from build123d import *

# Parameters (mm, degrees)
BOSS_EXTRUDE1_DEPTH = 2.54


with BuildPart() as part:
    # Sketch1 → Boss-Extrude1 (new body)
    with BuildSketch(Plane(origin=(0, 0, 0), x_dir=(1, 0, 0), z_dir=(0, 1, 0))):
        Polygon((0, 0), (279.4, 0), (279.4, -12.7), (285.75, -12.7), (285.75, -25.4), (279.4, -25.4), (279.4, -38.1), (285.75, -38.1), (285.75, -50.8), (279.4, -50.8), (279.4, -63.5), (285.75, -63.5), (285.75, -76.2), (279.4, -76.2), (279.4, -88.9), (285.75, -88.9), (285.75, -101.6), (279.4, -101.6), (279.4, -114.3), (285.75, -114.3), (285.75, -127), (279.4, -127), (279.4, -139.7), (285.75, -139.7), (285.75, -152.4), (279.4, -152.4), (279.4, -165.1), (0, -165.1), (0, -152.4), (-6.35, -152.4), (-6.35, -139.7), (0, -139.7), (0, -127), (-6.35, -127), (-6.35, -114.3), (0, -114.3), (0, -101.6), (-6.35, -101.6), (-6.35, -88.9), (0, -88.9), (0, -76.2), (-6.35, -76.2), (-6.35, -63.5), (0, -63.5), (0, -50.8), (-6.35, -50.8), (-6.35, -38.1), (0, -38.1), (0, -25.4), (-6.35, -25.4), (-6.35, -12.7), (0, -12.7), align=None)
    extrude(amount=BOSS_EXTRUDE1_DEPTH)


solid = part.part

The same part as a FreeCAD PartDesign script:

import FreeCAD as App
import Part
import Sketcher
Q = App.Units.Quantity

doc = App.newDocument("Part")
body = doc.addObject("PartDesign::Body", "Body")

sketch1 = body.newObject("Sketcher::SketchObject", "Sketch")
sketch1.AttachmentSupport = (doc.getObject("XZ_Plane"), [""])
sketch1.MapMode = "FlatFace"
sketch1.addGeometry(Part.LineSegment(App.Vector(279, 0, 0), App.Vector(0, 0, 0)), False)
sketch1.addGeometry(Part.LineSegment(App.Vector(0, 0, 0), App.Vector(0, 13, 0)), False)
sketch1.addGeometry(Part.LineSegment(App.Vector(0, 13, 0), App.Vector(-6, 13, 0)), False)
sketch1.addGeometry(Part.LineSegment(App.Vector(-6, 13, 0), App.Vector(-6, 25, 0)), False)
sketch1.addGeometry(Part.LineSegment(App.Vector(-6, 25, 0), App.Vector(0, 25, 0)), False)
sketch1.addGeometry(Part.LineSegment(App.Vector(0, 25, 0), App.Vector(0, 38, 0)), False)
sketch1.addGeometry(Part.LineSegment(App.Vector(0, 38, 0), App.Vector(-6, 38, 0)), False)
sketch1.addGeometry(Part.LineSegment(App.Vector(-6, 38, 0), App.Vector(-6, 51, 0)), False)
sketch1.addGeometry(Part.LineSegment(App.Vector(-6, 51, 0), App.Vector(0, 51, 0)), False)
sketch1.addGeometry(Part.LineSegment(App.Vector(0, 51, 0), App.Vector(0, 64, 0)), False)
sketch1.addGeometry(Part.LineSegment(App.Vector(0, 64, 0), App.Vector(-6, 64, 0)), False)
sketch1.addGeometry(Part.LineSegment(App.Vector(-6, 64, 0), App.Vector(-6, 76, 0)), False)
sketch1.addGeometry(Part.LineSegment(App.Vector(-6, 76, 0), App.Vector(0, 76, 0)), False)
sketch1.addGeometry(Part.LineSegment(App.Vector(0, 76, 0), App.Vector(0, 89, 0)), False)
sketch1.addGeometry(Part.LineSegment(App.Vector(0, 89, 0), App.Vector(-6, 89, 0)), False)
sketch1.addGeometry(Part.LineSegment(App.Vector(-6, 89, 0), App.Vector(-6, 102, 0)), False)
sketch1.addGeometry(Part.LineSegment(App.Vector(-6, 102, 0), App.Vector(0, 102, 0)), False)
sketch1.addGeometry(Part.LineSegment(App.Vector(0, 102, 0), App.Vector(0, 114, 0)), False)
sketch1.addGeometry(Part.LineSegment(App.Vector(0, 114, 0), App.Vector(-6, 114, 0)), False)
sketch1.addGeometry(Part.LineSegment(App.Vector(-6, 114, 0), App.Vector(-6, 127, 0)), False)
sketch1.addGeometry(Part.LineSegment(App.Vector(-6, 127, 0), App.Vector(0, 127, 0)), False)
sketch1.addGeometry(Part.LineSegment(App.Vector(0, 127, 0), App.Vector(0, 140, 0)), False)
sketch1.addGeometry(Part.LineSegment(App.Vector(0, 140, 0), App.Vector(-6, 140, 0)), False)
sketch1.addGeometry(Part.LineSegment(App.Vector(-6, 140, 0), App.Vector(-6, 152, 0)), False)
sketch1.addGeometry(Part.LineSegment(App.Vector(-6, 152, 0), App.Vector(0, 152, 0)), False)
sketch1.addGeometry(Part.LineSegment(App.Vector(0, 152, 0), App.Vector(0, 165, 0)), False)
sketch1.addGeometry(Part.LineSegment(App.Vector(0, 165, 0), App.Vector(279, 165, 0)), False)
sketch1.addGeometry(Part.LineSegment(App.Vector(279, 165, 0), App.Vector(279, 152, 0)), False)
sketch1.addGeometry(Part.LineSegment(App.Vector(279, 152, 0), App.Vector(286, 152, 0)), False)
sketch1.addGeometry(Part.LineSegment(App.Vector(286, 152, 0), App.Vector(286, 140, 0)), False)
sketch1.addGeometry(Part.LineSegment(App.Vector(286, 140, 0), App.Vector(279, 140, 0)), False)
sketch1.addGeometry(Part.LineSegment(App.Vector(279, 140, 0), App.Vector(279, 127, 0)), False)
sketch1.addGeometry(Part.LineSegment(App.Vector(279, 127, 0), App.Vector(286, 127, 0)), False)
sketch1.addGeometry(Part.LineSegment(App.Vector(286, 127, 0), App.Vector(286, 114, 0)), False)
sketch1.addGeometry(Part.LineSegment(App.Vector(286, 114, 0), App.Vector(279, 114, 0)), False)
sketch1.addGeometry(Part.LineSegment(App.Vector(279, 114, 0), App.Vector(279, 102, 0)), False)
sketch1.addGeometry(Part.LineSegment(App.Vector(279, 102, 0), App.Vector(286, 102, 0)), False)
sketch1.addGeometry(Part.LineSegment(App.Vector(286, 102, 0), App.Vector(286, 89, 0)), False)
sketch1.addGeometry(Part.LineSegment(App.Vector(286, 89, 0), App.Vector(279, 89, 0)), False)
sketch1.addGeometry(Part.LineSegment(App.Vector(279, 89, 0), App.Vector(279, 76, 0)), False)
sketch1.addGeometry(Part.LineSegment(App.Vector(279, 76, 0), App.Vector(286, 76, 0)), False)
sketch1.addGeometry(Part.LineSegment(App.Vector(286, 76, 0), App.Vector(286, 64, 0)), False)
sketch1.addGeometry(Part.LineSegment(App.Vector(286, 64, 0), App.Vector(279, 64, 0)), False)
sketch1.addGeometry(Part.LineSegment(App.Vector(279, 64, 0), App.Vector(279, 51, 0)), False)
sketch1.addGeometry(Part.LineSegment(App.Vector(279, 51, 0), App.Vector(286, 51, 0)), False)
sketch1.addGeometry(Part.LineSegment(App.Vector(286, 51, 0), App.Vector(286, 38, 0)), False)
sketch1.addGeometry(Part.LineSegment(App.Vector(286, 38, 0), App.Vector(279, 38, 0)), False)
sketch1.addGeometry(Part.LineSegment(App.Vector(279, 38, 0), App.Vector(279, 25, 0)), False)
sketch1.addGeometry(Part.LineSegment(App.Vector(279, 25, 0), App.Vector(286, 25, 0)), False)
sketch1.addGeometry(Part.LineSegment(App.Vector(286, 25, 0), App.Vector(286, 13, 0)), False)
sketch1.addGeometry(Part.LineSegment(App.Vector(286, 13, 0), App.Vector(279, 13, 0)), False)
sketch1.addGeometry(Part.LineSegment(App.Vector(279, 13, 0), App.Vector(279, 0, 0)), False)
sketch1.addConstraint(Sketcher.Constraint("Coincident", 0, 2, 1, 1))
sketch1.addConstraint(Sketcher.Constraint("Coincident", 1, 2, 2, 1))
sketch1.addConstraint(Sketcher.Constraint("Coincident", 2, 2, 3, 1))
sketch1.addConstraint(Sketcher.Constraint("Coincident", 3, 2, 4, 1))
sketch1.addConstraint(Sketcher.Constraint("Coincident", 4, 2, 5, 1))
sketch1.addConstraint(Sketcher.Constraint("Coincident", 5, 2, 6, 1))
sketch1.addConstraint(Sketcher.Constraint("Coincident", 6, 2, 7, 1))
sketch1.addConstraint(Sketcher.Constraint("Coincident", 7, 2, 8, 1))
sketch1.addConstraint(Sketcher.Constraint("Coincident", 8, 2, 9, 1))
sketch1.addConstraint(Sketcher.Constraint("Coincident", 9, 2, 10, 1))
sketch1.addConstraint(Sketcher.Constraint("Coincident", 10, 2, 11, 1))
sketch1.addConstraint(Sketcher.Constraint("Coincident", 11, 2, 12, 1))
sketch1.addConstraint(Sketcher.Constraint("Coincident", 12, 2, 13, 1))
sketch1.addConstraint(Sketcher.Constraint("Coincident", 13, 2, 14, 1))
sketch1.addConstraint(Sketcher.Constraint("Coincident", 14, 2, 15, 1))
sketch1.addConstraint(Sketcher.Constraint("Coincident", 15, 2, 16, 1))
sketch1.addConstraint(Sketcher.Constraint("Coincident", 16, 2, 17, 1))
sketch1.addConstraint(Sketcher.Constraint("Coincident", 17, 2, 18, 1))
sketch1.addConstraint(Sketcher.Constraint("Coincident", 18, 2, 19, 1))
sketch1.addConstraint(Sketcher.Constraint("Coincident", 19, 2, 20, 1))
sketch1.addConstraint(Sketcher.Constraint("Coincident", 20, 2, 21, 1))
sketch1.addConstraint(Sketcher.Constraint("Coincident", 21, 2, 22, 1))
sketch1.addConstraint(Sketcher.Constraint("Coincident", 22, 2, 23, 1))
sketch1.addConstraint(Sketcher.Constraint("Coincident", 23, 2, 24, 1))
sketch1.addConstraint(Sketcher.Constraint("Coincident", 24, 2, 25, 1))
sketch1.addConstraint(Sketcher.Constraint("Coincident", 25, 2, 26, 1))
sketch1.addConstraint(Sketcher.Constraint("Coincident", 26, 2, 27, 1))
sketch1.addConstraint(Sketcher.Constraint("Coincident", 27, 2, 28, 1))
sketch1.addConstraint(Sketcher.Constraint("Coincident", 28, 2, 29, 1))
sketch1.addConstraint(Sketcher.Constraint("Coincident", 29, 2, 30, 1))
sketch1.addConstraint(Sketcher.Constraint("Coincident", 30, 2, 31, 1))
sketch1.addConstraint(Sketcher.Constraint("Coincident", 31, 2, 32, 1))
sketch1.addConstraint(Sketcher.Constraint("Coincident", 32, 2, 33, 1))
sketch1.addConstraint(Sketcher.Constraint("Coincident", 33, 2, 34, 1))
sketch1.addConstraint(Sketcher.Constraint("Coincident", 34, 2, 35, 1))
sketch1.addConstraint(Sketcher.Constraint("Coincident", 35, 2, 36, 1))
sketch1.addConstraint(Sketcher.Constraint("Coincident", 36, 2, 37, 1))
sketch1.addConstraint(Sketcher.Constraint("Coincident", 37, 2, 38, 1))
sketch1.addConstraint(Sketcher.Constraint("Coincident", 38, 2, 39, 1))
sketch1.addConstraint(Sketcher.Constraint("Coincident", 39, 2, 40, 1))
sketch1.addConstraint(Sketcher.Constraint("Coincident", 40, 2, 41, 1))
sketch1.addConstraint(Sketcher.Constraint("Coincident", 41, 2, 42, 1))
sketch1.addConstraint(Sketcher.Constraint("Coincident", 42, 2, 43, 1))
sketch1.addConstraint(Sketcher.Constraint("Coincident", 43, 2, 44, 1))
sketch1.addConstraint(Sketcher.Constraint("Coincident", 44, 2, 45, 1))
sketch1.addConstraint(Sketcher.Constraint("Coincident", 45, 2, 46, 1))
sketch1.addConstraint(Sketcher.Constraint("Coincident", 46, 2, 47, 1))
sketch1.addConstraint(Sketcher.Constraint("Coincident", 47, 2, 48, 1))
sketch1.addConstraint(Sketcher.Constraint("Coincident", 48, 2, 49, 1))
sketch1.addConstraint(Sketcher.Constraint("Coincident", 49, 2, 50, 1))
sketch1.addConstraint(Sketcher.Constraint("Coincident", 50, 2, 51, 1))
sketch1.addConstraint(Sketcher.Constraint("Coincident", 51, 2, 0, 1))
sketch1.addConstraint(Sketcher.Constraint("Horizontal", 0))
sketch1.addConstraint(Sketcher.Constraint("Vertical", 1))
sketch1.addConstraint(Sketcher.Constraint("Horizontal", 2))
sketch1.addConstraint(Sketcher.Constraint("Vertical", 3))
sketch1.addConstraint(Sketcher.Constraint("Horizontal", 4))
sketch1.addConstraint(Sketcher.Constraint("Vertical", 5))
sketch1.addConstraint(Sketcher.Constraint("Horizontal", 6))
sketch1.addConstraint(Sketcher.Constraint("Vertical", 7))
sketch1.addConstraint(Sketcher.Constraint("Horizontal", 8))
sketch1.addConstraint(Sketcher.Constraint("Vertical", 9))
sketch1.addConstraint(Sketcher.Constraint("Horizontal", 10))
sketch1.addConstraint(Sketcher.Constraint("Vertical", 11))
sketch1.addConstraint(Sketcher.Constraint("Horizontal", 12))
sketch1.addConstraint(Sketcher.Constraint("Vertical", 13))
sketch1.addConstraint(Sketcher.Constraint("Horizontal", 14))
sketch1.addConstraint(Sketcher.Constraint("Vertical", 15))
sketch1.addConstraint(Sketcher.Constraint("Horizontal", 16))
sketch1.addConstraint(Sketcher.Constraint("Vertical", 17))
sketch1.addConstraint(Sketcher.Constraint("Horizontal", 18))
sketch1.addConstraint(Sketcher.Constraint("Vertical", 19))
sketch1.addConstraint(Sketcher.Constraint("Horizontal", 20))
sketch1.addConstraint(Sketcher.Constraint("Vertical", 21))
sketch1.addConstraint(Sketcher.Constraint("Horizontal", 22))
sketch1.addConstraint(Sketcher.Constraint("Vertical", 23))
sketch1.addConstraint(Sketcher.Constraint("Horizontal", 24))
sketch1.addConstraint(Sketcher.Constraint("Vertical", 25))
sketch1.addConstraint(Sketcher.Constraint("Horizontal", 26))
sketch1.addConstraint(Sketcher.Constraint("Vertical", 27))
sketch1.addConstraint(Sketcher.Constraint("Horizontal", 28))
sketch1.addConstraint(Sketcher.Constraint("Vertical", 29))
sketch1.addConstraint(Sketcher.Constraint("Horizontal", 30))
sketch1.addConstraint(Sketcher.Constraint("Vertical", 31))
sketch1.addConstraint(Sketcher.Constraint("Horizontal", 32))
sketch1.addConstraint(Sketcher.Constraint("Vertical", 33))
sketch1.addConstraint(Sketcher.Constraint("Horizontal", 34))
sketch1.addConstraint(Sketcher.Constraint("Vertical", 35))
sketch1.addConstraint(Sketcher.Constraint("Horizontal", 36))
sketch1.addConstraint(Sketcher.Constraint("Vertical", 37))
sketch1.addConstraint(Sketcher.Constraint("Horizontal", 38))
sketch1.addConstraint(Sketcher.Constraint("Vertical", 39))
sketch1.addConstraint(Sketcher.Constraint("Horizontal", 40))
sketch1.addConstraint(Sketcher.Constraint("Vertical", 41))
sketch1.addConstraint(Sketcher.Constraint("Horizontal", 42))
sketch1.addConstraint(Sketcher.Constraint("Vertical", 43))
sketch1.addConstraint(Sketcher.Constraint("Horizontal", 44))
sketch1.addConstraint(Sketcher.Constraint("Vertical", 45))
sketch1.addConstraint(Sketcher.Constraint("Horizontal", 46))
sketch1.addConstraint(Sketcher.Constraint("Vertical", 47))
sketch1.addConstraint(Sketcher.Constraint("Horizontal", 48))
sketch1.addConstraint(Sketcher.Constraint("Vertical", 49))
sketch1.addConstraint(Sketcher.Constraint("Horizontal", 50))
sketch1.addConstraint(Sketcher.Constraint("Vertical", 51))
sketch1.addConstraint(Sketcher.Constraint("Coincident", 0, 2, -1, 1))
sketch1.addConstraint(Sketcher.Constraint("PointOnObject", 4, 2, -2))
sketch1.addConstraint(Sketcher.Constraint("PointOnObject", 8, 2, -2))
sketch1.addConstraint(Sketcher.Constraint("PointOnObject", 12, 2, -2))
sketch1.addConstraint(Sketcher.Constraint("PointOnObject", 16, 2, -2))
sketch1.addConstraint(Sketcher.Constraint("PointOnObject", 20, 2, -2))
sketch1.addConstraint(Sketcher.Constraint("PointOnObject", 24, 2, -2))
sketch1.addConstraint(Sketcher.Constraint("Horizontal", 24, 2, 27, 2))
sketch1.addConstraint(Sketcher.Constraint("Horizontal", 22, 2, 29, 2))
sketch1.addConstraint(Sketcher.Constraint("Horizontal", 20, 2, 31, 2))
sketch1.addConstraint(Sketcher.Constraint("Horizontal", 18, 2, 33, 2))
sketch1.addConstraint(Sketcher.Constraint("Horizontal", 16, 2, 35, 2))
sketch1.addConstraint(Sketcher.Constraint("Horizontal", 14, 2, 37, 2))
sketch1.addConstraint(Sketcher.Constraint("Horizontal", 12, 2, 39, 2))
sketch1.addConstraint(Sketcher.Constraint("Horizontal", 10, 2, 41, 2))
sketch1.addConstraint(Sketcher.Constraint("Horizontal", 8, 2, 43, 2))
sketch1.addConstraint(Sketcher.Constraint("Horizontal", 6, 2, 45, 2))
sketch1.addConstraint(Sketcher.Constraint("Horizontal", 4, 2, 47, 2))
sketch1.addConstraint(Sketcher.Constraint("Horizontal", 2, 2, 49, 2))
sketch1.addConstraint(Sketcher.Constraint("Vertical", 3, 2, 6, 2))
sketch1.addConstraint(Sketcher.Constraint("Vertical", 7, 2, 10, 2))
sketch1.addConstraint(Sketcher.Constraint("Vertical", 11, 2, 14, 2))
sketch1.addConstraint(Sketcher.Constraint("Vertical", 15, 2, 18, 2))
sketch1.addConstraint(Sketcher.Constraint("Vertical", 19, 2, 22, 2))
sketch1.addConstraint(Sketcher.Constraint("Vertical", 27, 2, 30, 2))
sketch1.addConstraint(Sketcher.Constraint("Vertical", 29, 2, 32, 2))
sketch1.addConstraint(Sketcher.Constraint("Vertical", 31, 2, 34, 2))
sketch1.addConstraint(Sketcher.Constraint("Vertical", 33, 2, 36, 2))
sketch1.addConstraint(Sketcher.Constraint("Vertical", 35, 2, 38, 2))
sketch1.addConstraint(Sketcher.Constraint("Vertical", 37, 2, 40, 2))
sketch1.addConstraint(Sketcher.Constraint("Vertical", 39, 2, 42, 2))
sketch1.addConstraint(Sketcher.Constraint("Vertical", 41, 2, 44, 2))
sketch1.addConstraint(Sketcher.Constraint("Vertical", 43, 2, 46, 2))
sketch1.addConstraint(Sketcher.Constraint("Vertical", 45, 2, 48, 2))
sketch1.addConstraint(Sketcher.Constraint("Vertical", 47, 2, 50, 2))
sketch1.addConstraint(Sketcher.Constraint("Equal", 24, 28))
sketch1.addConstraint(Sketcher.Constraint("Equal", 1, 3))
sketch1.addConstraint(Sketcher.Constraint("Equal", 3, 5))
sketch1.addConstraint(Sketcher.Constraint("Equal", 5, 7))
sketch1.addConstraint(Sketcher.Constraint("Equal", 7, 9))
sketch1.addConstraint(Sketcher.Constraint("Equal", 9, 11))
sketch1.addConstraint(Sketcher.Constraint("Equal", 11, 13))
sketch1.addConstraint(Sketcher.Constraint("Equal", 13, 15))
sketch1.addConstraint(Sketcher.Constraint("Equal", 15, 17))
sketch1.addConstraint(Sketcher.Constraint("Equal", 17, 19))
sketch1.addConstraint(Sketcher.Constraint("Equal", 19, 21))
sketch1.addConstraint(Sketcher.Constraint("Equal", 21, 23))
sketch1.addConstraint(Sketcher.Constraint("Equal", 23, 25))
sketch1.addConstraint(Sketcher.Constraint("DistanceX", 0, 2, 0, 1, Q("11 in")))
sketch1.addConstraint(Sketcher.Constraint("DistanceY", 1, 1, 1, 2, Q("0.5 in")))
sketch1.addConstraint(Sketcher.Constraint("DistanceX", 2, 2, 2, 1, Q("0.25 in")))
pad1 = body.newObject("PartDesign::Pad", "Pad")
pad1.Profile = sketch1
pad1.Length = Q("0.1 in")
pad1.Reversed = True

doc.recompute()
